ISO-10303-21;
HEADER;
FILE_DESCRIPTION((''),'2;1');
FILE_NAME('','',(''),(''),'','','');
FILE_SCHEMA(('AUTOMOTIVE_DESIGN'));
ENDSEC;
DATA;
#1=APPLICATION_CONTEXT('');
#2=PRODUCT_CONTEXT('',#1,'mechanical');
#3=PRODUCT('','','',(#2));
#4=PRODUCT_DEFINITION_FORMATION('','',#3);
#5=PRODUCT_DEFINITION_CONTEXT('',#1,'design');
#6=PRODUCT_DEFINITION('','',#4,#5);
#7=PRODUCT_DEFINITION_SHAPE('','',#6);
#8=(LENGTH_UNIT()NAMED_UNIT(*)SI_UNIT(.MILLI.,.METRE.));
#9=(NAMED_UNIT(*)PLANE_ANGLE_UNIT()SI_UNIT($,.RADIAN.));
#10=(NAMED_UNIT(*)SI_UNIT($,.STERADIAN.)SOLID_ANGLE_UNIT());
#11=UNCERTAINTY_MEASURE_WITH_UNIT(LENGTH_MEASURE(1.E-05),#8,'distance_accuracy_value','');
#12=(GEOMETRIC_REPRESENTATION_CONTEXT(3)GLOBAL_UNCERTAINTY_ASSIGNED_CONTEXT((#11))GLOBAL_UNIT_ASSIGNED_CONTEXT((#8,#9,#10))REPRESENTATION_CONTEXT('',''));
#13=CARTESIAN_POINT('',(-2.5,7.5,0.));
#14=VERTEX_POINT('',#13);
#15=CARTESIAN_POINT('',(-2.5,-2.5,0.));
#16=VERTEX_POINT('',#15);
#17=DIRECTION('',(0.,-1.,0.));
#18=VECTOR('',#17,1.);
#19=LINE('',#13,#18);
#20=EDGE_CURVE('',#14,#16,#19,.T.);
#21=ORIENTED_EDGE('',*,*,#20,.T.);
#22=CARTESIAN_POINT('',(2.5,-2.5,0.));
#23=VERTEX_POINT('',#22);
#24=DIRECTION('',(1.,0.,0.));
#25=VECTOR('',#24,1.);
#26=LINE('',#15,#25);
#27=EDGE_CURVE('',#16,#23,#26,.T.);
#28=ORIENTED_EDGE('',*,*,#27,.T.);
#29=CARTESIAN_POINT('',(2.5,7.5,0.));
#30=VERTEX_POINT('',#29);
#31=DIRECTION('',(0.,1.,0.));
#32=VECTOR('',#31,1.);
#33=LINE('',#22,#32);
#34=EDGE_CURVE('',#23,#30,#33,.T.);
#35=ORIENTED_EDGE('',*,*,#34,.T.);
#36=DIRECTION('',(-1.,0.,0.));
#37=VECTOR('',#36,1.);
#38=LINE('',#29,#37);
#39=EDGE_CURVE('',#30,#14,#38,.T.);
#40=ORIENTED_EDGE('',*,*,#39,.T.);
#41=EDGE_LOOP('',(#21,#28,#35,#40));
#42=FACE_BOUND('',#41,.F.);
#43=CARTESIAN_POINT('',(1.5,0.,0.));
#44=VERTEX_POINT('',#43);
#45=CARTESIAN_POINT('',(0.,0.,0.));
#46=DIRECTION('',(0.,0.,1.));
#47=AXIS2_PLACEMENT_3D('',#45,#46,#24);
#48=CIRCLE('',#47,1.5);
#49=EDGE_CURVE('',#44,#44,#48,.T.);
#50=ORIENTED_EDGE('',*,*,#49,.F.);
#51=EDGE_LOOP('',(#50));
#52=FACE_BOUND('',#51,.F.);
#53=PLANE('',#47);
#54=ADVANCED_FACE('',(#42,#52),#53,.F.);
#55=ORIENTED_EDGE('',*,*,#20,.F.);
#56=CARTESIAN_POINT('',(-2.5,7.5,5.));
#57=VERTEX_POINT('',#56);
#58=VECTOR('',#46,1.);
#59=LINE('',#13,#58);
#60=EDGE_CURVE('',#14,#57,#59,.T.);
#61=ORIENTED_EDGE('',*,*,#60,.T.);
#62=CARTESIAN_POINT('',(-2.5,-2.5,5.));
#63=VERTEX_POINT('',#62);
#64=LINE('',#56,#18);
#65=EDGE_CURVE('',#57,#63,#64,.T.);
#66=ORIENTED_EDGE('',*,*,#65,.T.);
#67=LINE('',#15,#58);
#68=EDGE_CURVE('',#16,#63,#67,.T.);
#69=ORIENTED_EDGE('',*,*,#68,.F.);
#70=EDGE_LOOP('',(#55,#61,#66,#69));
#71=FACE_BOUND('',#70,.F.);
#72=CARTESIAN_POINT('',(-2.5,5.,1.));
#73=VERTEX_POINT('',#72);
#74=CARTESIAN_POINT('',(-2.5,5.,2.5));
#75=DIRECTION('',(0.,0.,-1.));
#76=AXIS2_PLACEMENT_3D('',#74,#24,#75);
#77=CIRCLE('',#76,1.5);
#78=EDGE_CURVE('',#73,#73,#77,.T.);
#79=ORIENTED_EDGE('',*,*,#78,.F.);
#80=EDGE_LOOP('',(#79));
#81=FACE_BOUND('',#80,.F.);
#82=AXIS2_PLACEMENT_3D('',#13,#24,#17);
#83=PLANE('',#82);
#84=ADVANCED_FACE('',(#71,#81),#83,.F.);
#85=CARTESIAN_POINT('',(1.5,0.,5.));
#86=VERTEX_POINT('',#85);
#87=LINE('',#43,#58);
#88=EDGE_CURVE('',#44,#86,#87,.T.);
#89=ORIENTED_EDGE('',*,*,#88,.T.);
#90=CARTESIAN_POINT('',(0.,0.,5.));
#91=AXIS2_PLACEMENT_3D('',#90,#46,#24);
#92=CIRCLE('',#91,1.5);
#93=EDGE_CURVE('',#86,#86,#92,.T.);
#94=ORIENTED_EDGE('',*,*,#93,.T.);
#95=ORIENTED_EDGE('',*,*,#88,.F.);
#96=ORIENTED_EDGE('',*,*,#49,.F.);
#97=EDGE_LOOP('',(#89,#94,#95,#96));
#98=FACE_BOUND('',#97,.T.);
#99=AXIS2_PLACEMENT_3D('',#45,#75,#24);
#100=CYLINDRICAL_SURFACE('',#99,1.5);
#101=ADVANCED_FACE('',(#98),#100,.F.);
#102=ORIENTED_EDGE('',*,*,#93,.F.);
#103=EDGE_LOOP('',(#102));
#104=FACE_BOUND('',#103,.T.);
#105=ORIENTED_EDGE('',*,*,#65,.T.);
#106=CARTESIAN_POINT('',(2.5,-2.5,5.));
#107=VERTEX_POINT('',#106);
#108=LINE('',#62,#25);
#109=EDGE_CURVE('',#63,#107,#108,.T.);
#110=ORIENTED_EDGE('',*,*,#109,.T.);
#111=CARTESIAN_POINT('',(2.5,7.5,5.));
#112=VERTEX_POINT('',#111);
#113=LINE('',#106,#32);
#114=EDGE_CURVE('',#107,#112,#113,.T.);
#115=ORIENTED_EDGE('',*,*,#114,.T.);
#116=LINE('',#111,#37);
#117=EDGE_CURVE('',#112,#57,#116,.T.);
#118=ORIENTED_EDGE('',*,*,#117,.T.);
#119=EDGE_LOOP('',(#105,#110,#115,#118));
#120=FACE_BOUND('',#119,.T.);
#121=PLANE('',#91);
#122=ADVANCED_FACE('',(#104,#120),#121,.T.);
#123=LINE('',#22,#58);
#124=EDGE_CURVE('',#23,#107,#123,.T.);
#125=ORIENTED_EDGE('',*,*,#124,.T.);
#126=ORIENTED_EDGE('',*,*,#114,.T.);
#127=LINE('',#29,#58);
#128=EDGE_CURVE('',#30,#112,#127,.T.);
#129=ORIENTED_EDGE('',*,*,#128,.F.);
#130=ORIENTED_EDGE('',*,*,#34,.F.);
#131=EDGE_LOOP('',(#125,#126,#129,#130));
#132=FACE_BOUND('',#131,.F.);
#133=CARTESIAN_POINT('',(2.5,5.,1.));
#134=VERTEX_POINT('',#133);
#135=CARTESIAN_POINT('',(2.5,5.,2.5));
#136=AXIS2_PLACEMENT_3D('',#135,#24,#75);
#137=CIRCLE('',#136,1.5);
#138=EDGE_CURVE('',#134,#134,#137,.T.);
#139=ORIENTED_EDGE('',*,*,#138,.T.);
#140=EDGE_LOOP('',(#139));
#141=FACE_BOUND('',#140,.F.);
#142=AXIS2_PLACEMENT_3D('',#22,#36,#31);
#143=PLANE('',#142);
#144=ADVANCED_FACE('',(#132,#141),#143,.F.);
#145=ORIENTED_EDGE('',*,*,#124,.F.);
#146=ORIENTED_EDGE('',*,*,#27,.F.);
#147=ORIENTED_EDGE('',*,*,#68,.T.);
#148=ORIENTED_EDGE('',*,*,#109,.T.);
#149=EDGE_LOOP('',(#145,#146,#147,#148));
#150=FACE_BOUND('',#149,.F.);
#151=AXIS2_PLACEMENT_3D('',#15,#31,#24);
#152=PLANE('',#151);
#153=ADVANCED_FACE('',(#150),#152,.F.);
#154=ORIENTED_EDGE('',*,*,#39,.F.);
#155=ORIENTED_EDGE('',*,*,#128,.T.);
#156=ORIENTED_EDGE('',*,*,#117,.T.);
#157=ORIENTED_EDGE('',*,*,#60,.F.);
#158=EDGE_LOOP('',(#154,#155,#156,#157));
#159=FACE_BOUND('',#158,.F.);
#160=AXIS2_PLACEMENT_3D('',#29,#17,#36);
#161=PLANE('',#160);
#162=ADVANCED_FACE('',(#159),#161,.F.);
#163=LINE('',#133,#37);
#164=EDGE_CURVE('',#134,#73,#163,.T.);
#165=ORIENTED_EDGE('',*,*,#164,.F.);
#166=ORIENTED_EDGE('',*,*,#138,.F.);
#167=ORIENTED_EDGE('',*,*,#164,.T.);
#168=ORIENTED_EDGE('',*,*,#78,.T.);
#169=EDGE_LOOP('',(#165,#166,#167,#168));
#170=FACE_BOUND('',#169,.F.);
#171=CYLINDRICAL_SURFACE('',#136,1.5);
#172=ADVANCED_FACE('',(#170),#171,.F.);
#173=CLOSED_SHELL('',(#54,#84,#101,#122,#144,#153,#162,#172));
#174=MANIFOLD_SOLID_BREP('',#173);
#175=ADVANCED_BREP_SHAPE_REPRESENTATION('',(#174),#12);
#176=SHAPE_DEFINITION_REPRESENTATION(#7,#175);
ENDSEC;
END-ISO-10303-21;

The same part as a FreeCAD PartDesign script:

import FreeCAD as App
import Part
import Sketcher

V = App.Vector

doc = App.newDocument("Part")
body = doc.addObject("PartDesign::Body", "Body")

# Sketch on XY plane
sketch1 = body.newObject("Sketcher::SketchObject", "Sketch")
sketch1.AttachmentSupport = (doc.getObject("XY_Plane"), [""])
sketch1.MapMode = "FlatFace"
sketch1.addGeometry([
    Part.LineSegment(V(-2.5, 7.5, 0), V(-2.5, -2.5, 0)),  # 0
    Part.LineSegment(V(-2.5, -2.5, 0), V(2.5, -2.5, 0)),  # 1
    Part.LineSegment(V(2.5, -2.5, 0), V(2.5, 7.5, 0)),  # 2
    Part.LineSegment(V(2.5, 7.5, 0), V(-2.5, 7.5, 0)),  # 3
    Part.Circle(V(0, 0, 0), V(0, 0, 1), 1.5),  # 4
], False)
sketch1.addConstraint([
    Sketcher.Constraint("Coincident", 0, 2, 1, 1),
    Sketcher.Constraint("Coincident", 1, 2, 2, 1),
    Sketcher.Constraint("Coincident", 2, 2, 3, 1),
    Sketcher.Constraint("Coincident", 3, 2, 0, 1),
    Sketcher.Constraint("Vertical", 0),
    Sketcher.Constraint("Horizontal", 1),
    Sketcher.Constraint("Vertical", 2),
    Sketcher.Constraint("Horizontal", 3),
    Sketcher.Constraint("Coincident", 4, 3, -1, 1),
    Sketcher.Constraint("Diameter", 4, 3.0),
    Sketcher.Constraint("DistanceX", 1, 1, 1, 2, 5.0),
    Sketcher.Constraint("DistanceX", 0, 2, -1, 1, 2.5),
    Sketcher.Constraint("DistanceY", 0, 2, -1, 1, 2.5),
    Sketcher.Constraint("DistanceY", 0, 2, 0, 1, 10.0),
])
pad1 = body.newObject("PartDesign::Pad", "Pad")
pad1.Profile = sketch1
pad1.Length = 5

# Sketch on YZ plane
sketch2 = body.newObject("Sketcher::SketchObject", "Sketch001")
sketch2.AttachmentSupport = (doc.getObject("YZ_Plane"), [""])
sketch2.MapMode = "FlatFace"
sketch2.AttachmentOffset = App.Placement(V(0, 0, 2.5), App.Rotation())
sketch2.addGeometry(Part.Circle(V(5, 2.5, 0), V(0, 0, 1), 1.5), False)
sketch2.addConstraint([
    Sketcher.Constraint("Diameter", 0, 3.0),
    Sketcher.Constraint("DistanceX", -1, 1, 0, 3, 5.0),
    Sketcher.Constraint("DistanceY", -1, 1, 0, 3, 2.5),
])
pocket1 = body.newObject("PartDesign::Pocket", "Pocket")
pocket1.Profile = sketch2
pocket1.Length = 5

doc.recompute()
